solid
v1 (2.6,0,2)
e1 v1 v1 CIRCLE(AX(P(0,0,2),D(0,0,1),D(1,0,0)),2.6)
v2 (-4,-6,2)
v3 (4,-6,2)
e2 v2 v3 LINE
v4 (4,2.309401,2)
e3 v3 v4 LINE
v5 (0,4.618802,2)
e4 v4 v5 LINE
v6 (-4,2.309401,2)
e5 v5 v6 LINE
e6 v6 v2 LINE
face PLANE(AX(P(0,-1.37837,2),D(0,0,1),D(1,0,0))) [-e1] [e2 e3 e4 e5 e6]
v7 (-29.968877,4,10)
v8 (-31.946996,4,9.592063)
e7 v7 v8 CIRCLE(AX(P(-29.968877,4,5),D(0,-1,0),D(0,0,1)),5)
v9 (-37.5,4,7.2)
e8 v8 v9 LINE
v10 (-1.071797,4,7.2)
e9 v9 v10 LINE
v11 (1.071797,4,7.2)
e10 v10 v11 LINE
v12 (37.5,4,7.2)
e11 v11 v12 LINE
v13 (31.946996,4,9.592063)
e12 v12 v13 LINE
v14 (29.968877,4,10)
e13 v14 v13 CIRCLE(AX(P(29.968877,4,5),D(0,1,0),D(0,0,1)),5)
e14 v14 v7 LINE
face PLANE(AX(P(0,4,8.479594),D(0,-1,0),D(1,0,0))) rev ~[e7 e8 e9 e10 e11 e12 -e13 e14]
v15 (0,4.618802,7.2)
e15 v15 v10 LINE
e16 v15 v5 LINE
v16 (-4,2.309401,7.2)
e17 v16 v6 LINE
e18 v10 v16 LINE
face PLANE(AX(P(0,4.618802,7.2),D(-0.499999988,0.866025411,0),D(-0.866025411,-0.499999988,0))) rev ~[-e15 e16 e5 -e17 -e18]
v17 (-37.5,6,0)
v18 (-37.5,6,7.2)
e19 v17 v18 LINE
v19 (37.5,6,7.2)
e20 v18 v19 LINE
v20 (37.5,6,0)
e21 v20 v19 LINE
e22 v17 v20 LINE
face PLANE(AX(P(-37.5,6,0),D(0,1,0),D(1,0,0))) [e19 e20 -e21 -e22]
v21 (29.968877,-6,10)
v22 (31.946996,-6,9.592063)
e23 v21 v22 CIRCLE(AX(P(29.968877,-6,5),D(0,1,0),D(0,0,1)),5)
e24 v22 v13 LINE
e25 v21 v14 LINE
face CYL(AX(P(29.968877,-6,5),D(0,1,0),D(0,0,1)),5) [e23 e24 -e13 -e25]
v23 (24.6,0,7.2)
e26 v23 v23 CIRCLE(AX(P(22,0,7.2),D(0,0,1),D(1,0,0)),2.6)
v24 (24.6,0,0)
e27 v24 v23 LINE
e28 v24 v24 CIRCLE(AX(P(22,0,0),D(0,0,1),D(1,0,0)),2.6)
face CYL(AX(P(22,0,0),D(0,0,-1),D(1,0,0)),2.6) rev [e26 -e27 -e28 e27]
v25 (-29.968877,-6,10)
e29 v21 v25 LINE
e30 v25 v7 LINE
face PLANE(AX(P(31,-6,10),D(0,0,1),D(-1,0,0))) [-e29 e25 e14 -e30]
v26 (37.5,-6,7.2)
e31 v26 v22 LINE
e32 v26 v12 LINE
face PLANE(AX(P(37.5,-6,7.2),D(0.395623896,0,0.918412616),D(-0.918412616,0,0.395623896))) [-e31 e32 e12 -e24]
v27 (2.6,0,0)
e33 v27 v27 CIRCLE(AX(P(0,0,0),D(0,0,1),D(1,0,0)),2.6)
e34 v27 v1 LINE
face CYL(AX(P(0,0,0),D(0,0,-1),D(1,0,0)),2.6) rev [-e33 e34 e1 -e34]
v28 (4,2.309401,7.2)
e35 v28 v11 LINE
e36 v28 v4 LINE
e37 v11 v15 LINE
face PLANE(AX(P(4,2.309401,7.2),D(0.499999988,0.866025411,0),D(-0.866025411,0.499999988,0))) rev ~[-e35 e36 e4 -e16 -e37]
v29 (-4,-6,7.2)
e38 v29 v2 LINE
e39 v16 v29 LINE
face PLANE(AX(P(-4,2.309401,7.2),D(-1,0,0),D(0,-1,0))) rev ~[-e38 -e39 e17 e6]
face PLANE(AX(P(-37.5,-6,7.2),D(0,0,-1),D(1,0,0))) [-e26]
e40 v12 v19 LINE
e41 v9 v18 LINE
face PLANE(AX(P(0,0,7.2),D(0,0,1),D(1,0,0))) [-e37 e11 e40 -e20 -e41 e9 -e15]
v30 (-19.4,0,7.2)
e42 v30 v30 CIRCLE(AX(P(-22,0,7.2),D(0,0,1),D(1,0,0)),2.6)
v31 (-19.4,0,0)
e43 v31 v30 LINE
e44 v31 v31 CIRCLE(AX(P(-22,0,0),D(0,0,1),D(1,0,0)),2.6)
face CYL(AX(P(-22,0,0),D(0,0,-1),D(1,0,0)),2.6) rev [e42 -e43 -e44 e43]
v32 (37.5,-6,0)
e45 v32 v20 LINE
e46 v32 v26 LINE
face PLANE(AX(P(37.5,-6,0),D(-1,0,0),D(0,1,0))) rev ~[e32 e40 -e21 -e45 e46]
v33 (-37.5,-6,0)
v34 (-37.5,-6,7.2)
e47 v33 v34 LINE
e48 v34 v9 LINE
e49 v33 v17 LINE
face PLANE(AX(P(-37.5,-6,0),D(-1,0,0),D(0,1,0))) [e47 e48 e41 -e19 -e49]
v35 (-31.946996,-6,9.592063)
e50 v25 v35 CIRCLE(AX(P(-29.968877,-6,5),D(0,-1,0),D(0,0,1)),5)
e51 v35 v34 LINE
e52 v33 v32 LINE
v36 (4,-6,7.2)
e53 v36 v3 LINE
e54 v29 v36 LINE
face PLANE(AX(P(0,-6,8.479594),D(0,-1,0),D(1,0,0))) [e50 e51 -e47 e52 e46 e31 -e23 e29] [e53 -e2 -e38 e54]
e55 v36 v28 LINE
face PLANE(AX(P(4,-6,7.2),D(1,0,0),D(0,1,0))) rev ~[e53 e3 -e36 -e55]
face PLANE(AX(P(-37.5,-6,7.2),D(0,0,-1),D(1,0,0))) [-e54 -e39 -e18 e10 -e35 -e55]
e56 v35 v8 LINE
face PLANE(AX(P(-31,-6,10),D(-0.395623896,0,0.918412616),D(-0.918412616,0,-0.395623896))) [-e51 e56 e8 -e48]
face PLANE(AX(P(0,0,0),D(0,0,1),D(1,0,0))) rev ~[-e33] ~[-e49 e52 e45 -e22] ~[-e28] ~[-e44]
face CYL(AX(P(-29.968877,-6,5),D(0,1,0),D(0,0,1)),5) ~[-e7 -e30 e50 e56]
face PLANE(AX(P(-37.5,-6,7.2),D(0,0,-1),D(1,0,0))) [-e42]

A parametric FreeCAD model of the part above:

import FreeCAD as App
import Part
import Sketcher
from FreeCAD import Vector
Q = App.Units.Quantity


def edges_at(feature, points):
    """Names of the edges that pass closest to the given points."""
    edges = feature.Shape.Edges
    near = lambda p: min(range(len(edges)), key=lambda i: edges[i].distToShape(Part.Vertex(*p))[0])
    return sorted({f"Edge{near(p) + 1}" for p in points})


def add_polygon(sketch, points):
    """Adds a closed chain of lines whose ends are joined by coincident constraints."""
    first, n = sketch.GeometryCount, len(points)
    for a, b in zip(points, points[1:] + points[:1]):
        sketch.addGeometry(Part.LineSegment(App.Vector(*a, 0), App.Vector(*b, 0)), False)
    for i in range(n):
        sketch.addConstraint(Sketcher.Constraint("Coincident", first + i, 2, first + (i + 1) % n, 1))

doc = App.newDocument("Part")
body = doc.addObject("PartDesign::Body", "Body")

# Sketch on XY plane
sketch1 = body.newObject("Sketcher::SketchObject", "Sketch")
sketch1.AttachmentSupport = (doc.getObject("XY_Plane"), [""])
sketch1.MapMode = "FlatFace"
add_polygon(sketch1, [(-37.5, 6), (-37.5, -6), (37.5, -6), (37.5, 6)])  # lines 0-3
sketch1.addGeometry(Part.Circle(Vector(-22, 0, 0), Vector(0, 0, 1), 2.6), False)  # 4
sketch1.addGeometry(Part.Circle(Vector(0, 0, 0), Vector(0, 0, 1), 2.6), False)  # 5
sketch1.addGeometry(Part.Circle(Vector(22, 0, 0), Vector(0, 0, 1), 2.6), False)  # 6
sketch1.addConstraint([
    Sketcher.Constraint("Vertical", 0),
    Sketcher.Constraint("Horizontal", 1),
    Sketcher.Constraint("Vertical", 2),
    Sketcher.Constraint("Horizontal", 3),
    Sketcher.Constraint("Coincident", 5, 3, -1, 1),
    Sketcher.Constraint("Equal", 4, 5),
    Sketcher.Constraint("Equal", 5, 6),
    Sketcher.Constraint("Symmetric", 4, 3, 6, 3, -1, 1),
    Sketcher.Constraint("Symmetric", 0, 2, 2, 2, -1, 1),
    Sketcher.Constraint("PointOnObject", 4, 3, -1),
    Sketcher.Constraint("Diameter", 4, Q("5.2 mm")),
    Sketcher.Constraint("DistanceX", 1, 1, 1, 2, Q("75 mm")),
    Sketcher.Constraint("DistanceY", 0, 2, 0, 1, Q("12 mm")),
    Sketcher.Constraint("DistanceX", 4, 3, -1, 1, Q("22 mm")),
])
pad1 = body.newObject("PartDesign::Pad", "Pad")
pad1.Profile = sketch1
pad1.Length = 7.2

# Sketch on XY plane
sketch2 = body.newObject("Sketcher::SketchObject", "Sketch001")
sketch2.AttachmentSupport = (doc.getObject("XY_Plane"), [""])
sketch2.MapMode = "FlatFace"
sketch2.AttachmentOffset = App.Placement(Vector(0, 0, 7.2), App.Rotation())
add_polygon(sketch2, [(4, 2.3), (0, 4.6), (-4, 2.3), (-4, -6), (4, -6)])  # lines 0-4
sketch2.addGeometry(Part.Circle(Vector(0, 0, 0), Vector(0, 0, 1), 2.6), False)  # 5
sketch2.addConstraint([
    Sketcher.Constraint("Vertical", 2),
    Sketcher.Constraint("Horizontal", 3),
    Sketcher.Constraint("Vertical", 4),
    Sketcher.Constraint("Coincident", 5, 3, -1, 1),
    Sketcher.Constraint("Symmetric", 1, 2, 4, 2, -2),
    Sketcher.Constraint("PointOnObject", 0, 2, -2),
    Sketcher.Constraint("Diameter", 5, Q("5.2 mm")),
    Sketcher.Constraint("DistanceX", 3, 1, 3, 2, Q("8 mm")),
    Sketcher.Constraint("Angle", 0, Q("150.000001 deg")),
    Sketcher.Constraint("DistanceY", 2, 2, -1, 1, Q("6 mm")),
    Sketcher.Constraint("DistanceY", 2, 2, 2, 1, Q("8.309401 mm")),
])
pocket1 = body.newObject("PartDesign::Pocket", "Pocket")
pocket1.Profile = sketch2
pocket1.Length = 5.2

# Sketch on XZ plane
sketch3 = body.newObject("Sketcher::SketchObject", "Sketch002")
sketch3.AttachmentSupport = (doc.getObject("XZ_Plane"), [""])
sketch3.MapMode = "FlatFace"
sketch3.AttachmentOffset = App.Placement(Vector(0, 0, 6), App.Rotation())
add_polygon(sketch3, [(31, 10), (-31, 10), (-38, 7), (38, 7)])  # lines 0-3
sketch3.addConstraint([
    Sketcher.Constraint("Horizontal", 0),
    Sketcher.Constraint("Horizontal", 2),
    Sketcher.Constraint("Equal", 1, 3),
    Sketcher.Constraint("DistanceX", 0, 2, 0, 1, Q("62 mm")),
    Sketcher.Constraint("DistanceX", 2, 1, 2, 2, Q("75 mm")),
    Sketcher.Constraint("DistanceX", 0, 2, -1, 1, Q("31 mm")),
    Sketcher.Constraint("DistanceY", -1, 1, 0, 2, Q("10 mm")),
    Sketcher.Constraint("DistanceY", -1, 1, 1, 2, Q("7.2 mm")),
])
pad2 = body.newObject("PartDesign::Pad", "Pad001")
pad2.Profile = sketch3
pad2.Length = 10
pad2.Reversed = True
doc.recompute()

fillet = body.newObject("PartDesign::Fillet", "Fillet")
fillet.Base = (pad2, edges_at(pad2, [(-31, -1, 10), (31, -1, 10)]))
fillet.Radius = 5

doc.recompute()
